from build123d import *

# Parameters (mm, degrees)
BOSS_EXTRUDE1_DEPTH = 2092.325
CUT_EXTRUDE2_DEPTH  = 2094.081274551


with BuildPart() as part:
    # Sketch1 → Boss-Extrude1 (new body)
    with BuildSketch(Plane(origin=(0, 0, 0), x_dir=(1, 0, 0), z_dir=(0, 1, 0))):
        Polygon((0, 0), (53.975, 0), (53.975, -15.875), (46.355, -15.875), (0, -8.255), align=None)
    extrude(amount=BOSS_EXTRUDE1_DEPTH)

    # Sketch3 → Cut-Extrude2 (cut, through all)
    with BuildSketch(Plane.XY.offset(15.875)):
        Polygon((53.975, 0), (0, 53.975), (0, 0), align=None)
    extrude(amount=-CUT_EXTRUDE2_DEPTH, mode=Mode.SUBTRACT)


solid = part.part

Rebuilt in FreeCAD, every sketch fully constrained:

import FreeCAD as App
import Part
import Sketcher

V = App.Vector
Q = App.Units.Quantity

doc = App.newDocument("Part")
body = doc.addObject("PartDesign::Body", "Body")

sketch1 = doc.addObject("Sketcher::SketchObject", "Sketch")
body.addObject(sketch1)
sketch1.AttachmentSupport = (doc.XZ_Plane, [""])
sketch1.MapMode = "FlatFace"
sketch1.addGeometry([
    Part.LineSegment(V(54, 0, 0), V(0, 0, 0)),
    Part.LineSegment(V(0, 0, 0), V(0, 8, 0)),
    Part.LineSegment(V(0, 8, 0), V(46, 16, 0)),
    Part.LineSegment(V(46, 16, 0), V(54, 16, 0)),
    Part.LineSegment(V(54, 16, 0), V(54, 0, 0)),
], False)
sketch1.addConstraint([
    Sketcher.Constraint("Coincident", 0, 2, 1, 1),
    Sketcher.Constraint("Coincident", 1, 2, 2, 1),
    Sketcher.Constraint("Coincident", 2, 2, 3, 1),
    Sketcher.Constraint("Coincident", 3, 2, 4, 1),
    Sketcher.Constraint("Coincident", 4, 2, 0, 1),
    Sketcher.Constraint("Horizontal", 0),
    Sketcher.Constraint("Vertical", 1),
    Sketcher.Constraint("Horizontal", 3),
    Sketcher.Constraint("Vertical", 4),
    Sketcher.Constraint("Coincident", 0, 2, -1, 1),
    Sketcher.Constraint("DistanceX", 3, 1, 3, 2, Q("0.3 in")),
    Sketcher.Constraint("DistanceY", 1, 2, 2, 2, Q("0.3 in")),
    Sketcher.Constraint("DistanceX", 0, 2, 0, 1, Q("2.125 in")),
    Sketcher.Constraint("DistanceY", 1, 1, 1, 2, Q("0.325 in")),
])
pad1 = doc.addObject("PartDesign::Pad", "Pad")
body.addObject(pad1)
pad1.Profile = sketch1
pad1.Length = Q("82.375 in")
pad1.Reversed = True

sketch2 = doc.addObject("Sketcher::SketchObject", "Sketch001")
body.addObject(sketch2)
sketch2.AttachmentSupport = (doc.XY_Plane, [""])
sketch2.MapMode = "FlatFace"
sketch2.AttachmentOffset = App.Placement(V(0, 0, 0.625 * 25.4), App.Rotation())
sketch2.addGeometry([
    Part.LineSegment(V(54, 0, 0), V(0, 54, 0)),
    Part.LineSegment(V(0, 54, 0), V(0, 0, 0)),
    Part.LineSegment(V(0, 0, 0), V(54, 0, 0)),
], False)
sketch2.addConstraint([
    Sketcher.Constraint("Coincident", 0, 2, 1, 1),
    Sketcher.Constraint("Coincident", 1, 2, 2, 1),
    Sketcher.Constraint("Coincident", 2, 2, 0, 1),
    Sketcher.Constraint("Vertical", 1),
    Sketcher.Constraint("Horizontal", 2),
    Sketcher.Constraint("Coincident", 1, 2, -1, 1),
    Sketcher.Constraint("Equal", 2, 1),
    Sketcher.Constraint("DistanceX", 2, 1, 2, 2, Q("2.125 in")),
])
pocket1 = doc.addObject("PartDesign::Pocket", "Pocket")
body.addObject(pocket1)
pocket1.Profile = sketch2
pocket1.Type = "ThroughAll"

doc.recompute()
